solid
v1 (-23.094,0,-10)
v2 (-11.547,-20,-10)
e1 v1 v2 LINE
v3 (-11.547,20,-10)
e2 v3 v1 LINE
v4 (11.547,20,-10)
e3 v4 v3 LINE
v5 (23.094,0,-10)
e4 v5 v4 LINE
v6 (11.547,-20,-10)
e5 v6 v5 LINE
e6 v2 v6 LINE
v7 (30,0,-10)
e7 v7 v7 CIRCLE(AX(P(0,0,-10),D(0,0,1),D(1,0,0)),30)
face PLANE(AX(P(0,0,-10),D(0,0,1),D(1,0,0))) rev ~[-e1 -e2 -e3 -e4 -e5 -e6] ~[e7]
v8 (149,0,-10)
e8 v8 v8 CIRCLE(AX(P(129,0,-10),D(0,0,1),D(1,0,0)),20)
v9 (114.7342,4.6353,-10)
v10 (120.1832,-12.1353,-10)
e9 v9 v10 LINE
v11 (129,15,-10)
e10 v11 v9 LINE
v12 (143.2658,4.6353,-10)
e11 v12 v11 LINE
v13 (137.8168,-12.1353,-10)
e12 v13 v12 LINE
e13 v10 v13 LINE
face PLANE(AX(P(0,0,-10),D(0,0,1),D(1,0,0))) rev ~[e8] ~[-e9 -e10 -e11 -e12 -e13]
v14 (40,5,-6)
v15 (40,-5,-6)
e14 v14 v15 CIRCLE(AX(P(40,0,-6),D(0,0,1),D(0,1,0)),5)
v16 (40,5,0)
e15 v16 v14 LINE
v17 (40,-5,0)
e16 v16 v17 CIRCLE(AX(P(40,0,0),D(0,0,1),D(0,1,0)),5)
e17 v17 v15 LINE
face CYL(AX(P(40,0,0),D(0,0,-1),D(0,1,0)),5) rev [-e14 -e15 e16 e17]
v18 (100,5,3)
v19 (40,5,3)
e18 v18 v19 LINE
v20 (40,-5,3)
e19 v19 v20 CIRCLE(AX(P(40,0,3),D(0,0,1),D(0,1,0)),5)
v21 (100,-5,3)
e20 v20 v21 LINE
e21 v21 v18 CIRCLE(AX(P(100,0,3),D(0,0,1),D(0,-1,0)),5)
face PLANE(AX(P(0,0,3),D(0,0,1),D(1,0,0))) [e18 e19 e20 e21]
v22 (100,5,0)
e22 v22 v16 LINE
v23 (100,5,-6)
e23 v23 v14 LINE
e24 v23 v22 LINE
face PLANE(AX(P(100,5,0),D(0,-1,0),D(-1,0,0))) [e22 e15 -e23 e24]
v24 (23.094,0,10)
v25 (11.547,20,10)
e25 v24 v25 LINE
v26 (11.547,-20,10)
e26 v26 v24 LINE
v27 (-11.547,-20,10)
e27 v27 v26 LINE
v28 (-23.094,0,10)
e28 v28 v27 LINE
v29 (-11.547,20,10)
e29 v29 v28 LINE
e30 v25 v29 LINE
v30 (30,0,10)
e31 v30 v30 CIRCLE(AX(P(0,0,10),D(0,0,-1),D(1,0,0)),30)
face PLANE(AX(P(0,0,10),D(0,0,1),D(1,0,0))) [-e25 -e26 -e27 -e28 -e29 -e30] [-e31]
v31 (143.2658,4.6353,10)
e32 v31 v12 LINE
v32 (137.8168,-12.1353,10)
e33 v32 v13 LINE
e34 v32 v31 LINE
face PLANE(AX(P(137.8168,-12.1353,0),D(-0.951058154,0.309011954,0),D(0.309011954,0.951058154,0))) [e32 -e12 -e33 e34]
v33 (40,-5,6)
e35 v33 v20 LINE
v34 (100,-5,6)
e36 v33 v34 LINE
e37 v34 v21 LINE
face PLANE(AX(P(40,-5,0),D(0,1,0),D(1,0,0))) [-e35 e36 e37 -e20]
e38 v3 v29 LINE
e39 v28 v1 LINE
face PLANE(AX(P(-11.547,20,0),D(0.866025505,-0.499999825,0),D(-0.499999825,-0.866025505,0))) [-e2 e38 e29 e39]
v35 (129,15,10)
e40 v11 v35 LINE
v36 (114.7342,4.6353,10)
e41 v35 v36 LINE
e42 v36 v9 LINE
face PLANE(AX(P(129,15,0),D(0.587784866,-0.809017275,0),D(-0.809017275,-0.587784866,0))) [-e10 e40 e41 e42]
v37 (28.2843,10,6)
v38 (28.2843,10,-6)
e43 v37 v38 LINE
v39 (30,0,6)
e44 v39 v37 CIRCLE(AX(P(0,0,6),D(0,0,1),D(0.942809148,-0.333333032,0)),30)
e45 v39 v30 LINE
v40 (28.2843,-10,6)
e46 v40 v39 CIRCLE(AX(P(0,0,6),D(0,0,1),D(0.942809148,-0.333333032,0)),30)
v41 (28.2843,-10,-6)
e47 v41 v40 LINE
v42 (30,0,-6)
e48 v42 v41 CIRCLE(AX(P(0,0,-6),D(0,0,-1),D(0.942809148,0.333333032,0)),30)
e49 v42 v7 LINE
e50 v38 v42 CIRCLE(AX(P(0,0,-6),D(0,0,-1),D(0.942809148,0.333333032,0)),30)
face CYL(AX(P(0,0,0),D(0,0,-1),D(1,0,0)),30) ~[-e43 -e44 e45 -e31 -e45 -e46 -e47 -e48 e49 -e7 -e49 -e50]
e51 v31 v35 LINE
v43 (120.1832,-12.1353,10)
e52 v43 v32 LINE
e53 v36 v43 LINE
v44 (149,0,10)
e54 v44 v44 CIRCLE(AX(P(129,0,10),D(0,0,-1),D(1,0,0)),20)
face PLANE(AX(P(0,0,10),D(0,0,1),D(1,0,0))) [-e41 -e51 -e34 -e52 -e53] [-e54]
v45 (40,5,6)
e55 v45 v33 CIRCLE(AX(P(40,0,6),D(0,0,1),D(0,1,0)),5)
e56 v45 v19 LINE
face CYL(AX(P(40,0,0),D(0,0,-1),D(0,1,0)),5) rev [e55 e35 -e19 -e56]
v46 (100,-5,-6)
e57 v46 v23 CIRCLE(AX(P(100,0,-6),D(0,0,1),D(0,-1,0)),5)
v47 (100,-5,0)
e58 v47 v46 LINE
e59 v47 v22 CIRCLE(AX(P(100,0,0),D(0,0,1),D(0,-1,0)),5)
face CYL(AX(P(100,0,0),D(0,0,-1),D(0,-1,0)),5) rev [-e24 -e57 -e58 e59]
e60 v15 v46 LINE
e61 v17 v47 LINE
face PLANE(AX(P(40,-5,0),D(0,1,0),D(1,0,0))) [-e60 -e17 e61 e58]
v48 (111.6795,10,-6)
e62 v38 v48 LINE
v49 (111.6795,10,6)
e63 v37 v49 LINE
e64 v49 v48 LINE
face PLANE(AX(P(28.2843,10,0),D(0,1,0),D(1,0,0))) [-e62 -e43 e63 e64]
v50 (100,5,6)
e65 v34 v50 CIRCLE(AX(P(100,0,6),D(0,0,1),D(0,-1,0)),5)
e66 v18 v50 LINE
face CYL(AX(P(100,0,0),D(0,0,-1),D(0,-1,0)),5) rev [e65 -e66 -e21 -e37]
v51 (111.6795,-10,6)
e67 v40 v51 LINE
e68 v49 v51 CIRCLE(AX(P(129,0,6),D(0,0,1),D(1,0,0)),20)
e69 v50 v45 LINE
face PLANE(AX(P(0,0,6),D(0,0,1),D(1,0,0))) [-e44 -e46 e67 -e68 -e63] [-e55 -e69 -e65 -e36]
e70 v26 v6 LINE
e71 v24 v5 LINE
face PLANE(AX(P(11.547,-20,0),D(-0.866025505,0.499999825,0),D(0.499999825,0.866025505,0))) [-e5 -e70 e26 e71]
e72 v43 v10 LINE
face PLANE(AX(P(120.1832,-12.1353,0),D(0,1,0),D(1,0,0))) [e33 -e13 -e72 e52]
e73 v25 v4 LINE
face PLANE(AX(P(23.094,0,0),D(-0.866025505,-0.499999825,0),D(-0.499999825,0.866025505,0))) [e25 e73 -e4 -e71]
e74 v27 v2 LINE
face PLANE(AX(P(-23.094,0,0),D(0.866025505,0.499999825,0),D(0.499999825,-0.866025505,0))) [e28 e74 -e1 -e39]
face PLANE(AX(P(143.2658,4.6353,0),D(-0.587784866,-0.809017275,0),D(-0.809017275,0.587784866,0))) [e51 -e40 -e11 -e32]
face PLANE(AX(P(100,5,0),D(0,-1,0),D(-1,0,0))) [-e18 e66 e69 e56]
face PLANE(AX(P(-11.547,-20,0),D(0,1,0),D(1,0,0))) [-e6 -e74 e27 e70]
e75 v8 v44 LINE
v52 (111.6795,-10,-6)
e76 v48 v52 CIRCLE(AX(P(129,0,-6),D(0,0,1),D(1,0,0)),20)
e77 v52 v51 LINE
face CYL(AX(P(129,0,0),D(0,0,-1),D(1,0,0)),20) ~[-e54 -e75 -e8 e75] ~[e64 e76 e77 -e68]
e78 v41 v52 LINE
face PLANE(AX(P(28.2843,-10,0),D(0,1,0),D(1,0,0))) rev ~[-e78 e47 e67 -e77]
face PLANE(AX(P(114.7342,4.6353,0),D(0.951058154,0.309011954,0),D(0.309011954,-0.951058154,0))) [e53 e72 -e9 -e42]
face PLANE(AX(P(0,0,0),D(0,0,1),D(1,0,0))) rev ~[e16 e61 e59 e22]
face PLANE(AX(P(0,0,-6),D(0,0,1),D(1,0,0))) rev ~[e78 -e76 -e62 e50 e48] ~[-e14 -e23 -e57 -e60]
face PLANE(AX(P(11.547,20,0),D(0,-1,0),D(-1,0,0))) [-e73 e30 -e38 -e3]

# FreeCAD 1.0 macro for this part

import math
import FreeCAD as App
import Part
import Sketcher

V = App.Vector
Q = App.Units.Quantity

doc = App.newDocument("Part")
body = doc.addObject("PartDesign::Body", "Body")
body.AllowCompound = True

# Sketch on XY plane
sketch1 = doc.addObject("Sketcher::SketchObject", "Sketch")
body.addObject(sketch1)
sketch1.AttachmentSupport = (doc.XY_Plane, [""])
sketch1.MapMode = "FlatFace"
sketch1.addGeometry([
    Part.Circle(V(0, 0, 0), V(0, 0, 1), 30),  # 0
    Part.LineSegment(V(-23, 0, 0), V(-12, 20, 0)),  # 1
    Part.LineSegment(V(-12, 20, 0), V(12, 20, 0)),  # 2
    Part.LineSegment(V(12, 20, 0), V(23, 0, 0)),  # 3
    Part.LineSegment(V(23, 0, 0), V(12, -20, 0)),  # 4
    Part.LineSegment(V(12, -20, 0), V(-12, -20, 0)),  # 5
    Part.LineSegment(V(-12, -20, 0), V(-23, 0, 0)),  # 6
    Part.Circle(V(129, 0, 0), V(0, 0, 1), 20),  # 7
    Part.LineSegment(V(115, 5, 0), V(129, 15, 0)),  # 8
    Part.LineSegment(V(129, 15, 0), V(143, 5, 0)),  # 9
    Part.LineSegment(V(143, 5, 0), V(138, -12, 0)),  # 10
    Part.LineSegment(V(138, -12, 0), V(120, -12, 0)),  # 11
    Part.LineSegment(V(120, -12, 0), V(115, 5, 0)),  # 12
], False)
sketch1.addConstraint([
    Sketcher.Constraint("Coincident", 1, 2, 2, 1),
    Sketcher.Constraint("Coincident", 2, 2, 3, 1),
    Sketcher.Constraint("Coincident", 3, 2, 4, 1),
    Sketcher.Constraint("Coincident", 4, 2, 5, 1),
    Sketcher.Constraint("Coincident", 5, 2, 6, 1),
    Sketcher.Constraint("Coincident", 6, 2, 1, 1),
    Sketcher.Constraint("Coincident", 8, 2, 9, 1),
    Sketcher.Constraint("Coincident", 9, 2, 10, 1),
    Sketcher.Constraint("Coincident", 10, 2, 11, 1),
    Sketcher.Constraint("Coincident", 11, 2, 12, 1),
    Sketcher.Constraint("Coincident", 12, 2, 8, 1),
    Sketcher.Constraint("Horizontal", 2),
    Sketcher.Constraint("Horizontal", 5),
    Sketcher.Constraint("Horizontal", 11),
    Sketcher.Constraint("Coincident", 0, 3, -1, 1),
    Sketcher.Constraint("Symmetric", 1, 2, 4, 2, -1, 1),
    Sketcher.Constraint("Symmetric", 3, 2, 6, 2, -1, 1),
    Sketcher.Constraint("PointOnObject", 7, 3, -1),
    Sketcher.Constraint("PointOnObject", 3, 2, -1),
    Sketcher.Constraint("Parallel", 3, 6),
    Sketcher.Constraint("Horizontal", 9, 2, 12, 2),
    Sketcher.Constraint("Vertical", 2, 2, 4, 2),
    Sketcher.Constraint("Vertical", 7, 3, 8, 2),
    Sketcher.Constraint("Equal", 8, 9),
    Sketcher.Constraint("Equal", 9, 10),
    Sketcher.Constraint("Equal", 10, 12),
    Sketcher.Constraint("Diameter", 0, 60.0),
    Sketcher.Constraint("Diameter", 7, 40.0),
    Sketcher.Constraint("Angle", 1, Q("60 deg")),
    Sketcher.Constraint("DistanceX", -1, 1, 7, 3, 129.0),
    Sketcher.Constraint("DistanceY", -1, 1, 1, 2, 20.0),
    Sketcher.Constraint("DistanceY", -1, 1, 8, 2, 15.0),
    Sketcher.Constraint("Angle", 8, Q("36 deg")),
    Sketcher.Constraint("Angle", 10, Q("-107.9997 deg")),
    Sketcher.Constraint("DistanceX", 2, 1, 2, 2, 23.094),
    Sketcher.Constraint("DistanceX", 11, 2, 11, 1, 17.6336),
])
pad1 = doc.addObject("PartDesign::Pad", "Pad")
body.addObject(pad1)
pad1.Profile = sketch1
pad1.Length = 20
pad1.Midplane = True

# Sketch on XY plane
sketch2 = doc.addObject("Sketcher::SketchObject", "Sketch001")
body.addObject(sketch2)
sketch2.AttachmentSupport = (doc.XY_Plane, [""])
sketch2.MapMode = "FlatFace"
sketch2.addGeometry([
    Part.ArcOfCircle(Part.Circle(V(0, 0, 0), V(0, 0, 1), 30), math.radians(-19), math.radians(19)),  # 0
    Part.LineSegment(V(28, -10, 0), V(112, -10, 0)),  # 1
    Part.ArcOfCircle(Part.Circle(V(129, 0, 0), V(0, 0, 1), 20), math.radians(150), math.radians(210)),  # 2
    Part.LineSegment(V(112, 10, 0), V(28, 10, 0)),  # 3
    Part.LineSegment(V(40, 5, 0), V(100, 5, 0)),  # 4
    Part.ArcOfCircle(Part.Circle(V(100, 0, 0), V(0, 0, 1), 5), math.radians(-90), math.radians(90)),  # 5
    Part.LineSegment(V(100, -5, 0), V(40, -5, 0)),  # 6
    Part.ArcOfCircle(Part.Circle(V(40, 0, 0), V(0, 0, 1), 5), math.radians(90), math.radians(270)),  # 7
], False)
sketch2.addConstraint([
    Sketcher.Constraint("Coincident", 0, 1, 1, 1),
    Sketcher.Constraint("Coincident", 1, 2, 2, 2),
    Sketcher.Constraint("Coincident", 2, 1, 3, 1),
    Sketcher.Constraint("Coincident", 3, 2, 0, 2),
    Sketcher.Constraint("Tangent", 4, 2, 5, 2),
    Sketcher.Constraint("Tangent", 5, 1, 6, 1),
    Sketcher.Constraint("Tangent", 6, 2, 7, 2),
    Sketcher.Constraint("Tangent", 7, 1, 4, 1),
    Sketcher.Constraint("Horizontal", 1),
    Sketcher.Constraint("Horizontal", 3),
    Sketcher.Constraint("Horizontal", 4),
    Sketcher.Constraint("Horizontal", 6),
    Sketcher.Constraint("Coincident", 0, 3, -1, 1),
    Sketcher.Constraint("Symmetric", 1, 2, 2, 1, -1),
    Sketcher.Constraint("PointOnObject", 5, 3, -1),
    Sketcher.Constraint("Radius", 0, 30.0),
    Sketcher.Constraint("Radius", 2, 20.0),
    Sketcher.Constraint("Radius", 5, 5.0),
    Sketcher.Constraint("DistanceX", 4, 1, 4, 2, 60.0),
    Sketcher.Constraint("DistanceX", -1, 1, 2, 3, 129.0),
    Sketcher.Constraint("DistanceX", -1, 1, 7, 3, 40.0),
    Sketcher.Constraint("DistanceY", 0, 1, -1, 1, 10.0),
])
pad2 = doc.addObject("PartDesign::Pad", "Pad001")
body.addObject(pad2)
pad2.Profile = sketch2
pad2.Length = 12
pad2.Midplane = True

# Sketch on XY plane
sketch3 = doc.addObject("Sketcher::SketchObject", "Sketch002")
body.addObject(sketch3)
sketch3.AttachmentSupport = (doc.XY_Plane, [""])
sketch3.MapMode = "FlatFace"
sketch3.addGeometry([
    Part.ArcOfCircle(Part.Circle(V(100, 0, 0), V(0, 0, 1), 5), math.radians(-90), math.radians(90)),
    Part.LineSegment(V(100, 5, 0), V(40, 5, 0)),
    Part.ArcOfCircle(Part.Circle(V(40, 0, 0), V(0, 0, 1), 5), math.radians(90), math.radians(270)),
    Part.LineSegment(V(40, -5, 0), V(100, -5, 0)),
], False)
sketch3.addConstraint([
    Sketcher.Constraint("Tangent", 0, 2, 1, 1),
    Sketcher.Constraint("Tangent", 1, 2, 2, 1),
    Sketcher.Constraint("Tangent", 2, 2, 3, 1),
    Sketcher.Constraint("Tangent", 3, 2, 0, 1),
    Sketcher.Constraint("Horizontal", 1),
    Sketcher.Constraint("Horizontal", 3),
    Sketcher.Constraint("PointOnObject", 0, 3, -1),
    Sketcher.Constraint("Radius", 0, 5.0),
    Sketcher.Constraint("DistanceX", 1, 2, 1, 1, 60.0),
    Sketcher.Constraint("DistanceX", -1, 1, 2, 3, 40.0),
])
pad3 = doc.addObject("PartDesign::Pad", "Pad002")
body.addObject(pad3)
pad3.Profile = sketch3
pad3.Length = 3

doc.recompute()
